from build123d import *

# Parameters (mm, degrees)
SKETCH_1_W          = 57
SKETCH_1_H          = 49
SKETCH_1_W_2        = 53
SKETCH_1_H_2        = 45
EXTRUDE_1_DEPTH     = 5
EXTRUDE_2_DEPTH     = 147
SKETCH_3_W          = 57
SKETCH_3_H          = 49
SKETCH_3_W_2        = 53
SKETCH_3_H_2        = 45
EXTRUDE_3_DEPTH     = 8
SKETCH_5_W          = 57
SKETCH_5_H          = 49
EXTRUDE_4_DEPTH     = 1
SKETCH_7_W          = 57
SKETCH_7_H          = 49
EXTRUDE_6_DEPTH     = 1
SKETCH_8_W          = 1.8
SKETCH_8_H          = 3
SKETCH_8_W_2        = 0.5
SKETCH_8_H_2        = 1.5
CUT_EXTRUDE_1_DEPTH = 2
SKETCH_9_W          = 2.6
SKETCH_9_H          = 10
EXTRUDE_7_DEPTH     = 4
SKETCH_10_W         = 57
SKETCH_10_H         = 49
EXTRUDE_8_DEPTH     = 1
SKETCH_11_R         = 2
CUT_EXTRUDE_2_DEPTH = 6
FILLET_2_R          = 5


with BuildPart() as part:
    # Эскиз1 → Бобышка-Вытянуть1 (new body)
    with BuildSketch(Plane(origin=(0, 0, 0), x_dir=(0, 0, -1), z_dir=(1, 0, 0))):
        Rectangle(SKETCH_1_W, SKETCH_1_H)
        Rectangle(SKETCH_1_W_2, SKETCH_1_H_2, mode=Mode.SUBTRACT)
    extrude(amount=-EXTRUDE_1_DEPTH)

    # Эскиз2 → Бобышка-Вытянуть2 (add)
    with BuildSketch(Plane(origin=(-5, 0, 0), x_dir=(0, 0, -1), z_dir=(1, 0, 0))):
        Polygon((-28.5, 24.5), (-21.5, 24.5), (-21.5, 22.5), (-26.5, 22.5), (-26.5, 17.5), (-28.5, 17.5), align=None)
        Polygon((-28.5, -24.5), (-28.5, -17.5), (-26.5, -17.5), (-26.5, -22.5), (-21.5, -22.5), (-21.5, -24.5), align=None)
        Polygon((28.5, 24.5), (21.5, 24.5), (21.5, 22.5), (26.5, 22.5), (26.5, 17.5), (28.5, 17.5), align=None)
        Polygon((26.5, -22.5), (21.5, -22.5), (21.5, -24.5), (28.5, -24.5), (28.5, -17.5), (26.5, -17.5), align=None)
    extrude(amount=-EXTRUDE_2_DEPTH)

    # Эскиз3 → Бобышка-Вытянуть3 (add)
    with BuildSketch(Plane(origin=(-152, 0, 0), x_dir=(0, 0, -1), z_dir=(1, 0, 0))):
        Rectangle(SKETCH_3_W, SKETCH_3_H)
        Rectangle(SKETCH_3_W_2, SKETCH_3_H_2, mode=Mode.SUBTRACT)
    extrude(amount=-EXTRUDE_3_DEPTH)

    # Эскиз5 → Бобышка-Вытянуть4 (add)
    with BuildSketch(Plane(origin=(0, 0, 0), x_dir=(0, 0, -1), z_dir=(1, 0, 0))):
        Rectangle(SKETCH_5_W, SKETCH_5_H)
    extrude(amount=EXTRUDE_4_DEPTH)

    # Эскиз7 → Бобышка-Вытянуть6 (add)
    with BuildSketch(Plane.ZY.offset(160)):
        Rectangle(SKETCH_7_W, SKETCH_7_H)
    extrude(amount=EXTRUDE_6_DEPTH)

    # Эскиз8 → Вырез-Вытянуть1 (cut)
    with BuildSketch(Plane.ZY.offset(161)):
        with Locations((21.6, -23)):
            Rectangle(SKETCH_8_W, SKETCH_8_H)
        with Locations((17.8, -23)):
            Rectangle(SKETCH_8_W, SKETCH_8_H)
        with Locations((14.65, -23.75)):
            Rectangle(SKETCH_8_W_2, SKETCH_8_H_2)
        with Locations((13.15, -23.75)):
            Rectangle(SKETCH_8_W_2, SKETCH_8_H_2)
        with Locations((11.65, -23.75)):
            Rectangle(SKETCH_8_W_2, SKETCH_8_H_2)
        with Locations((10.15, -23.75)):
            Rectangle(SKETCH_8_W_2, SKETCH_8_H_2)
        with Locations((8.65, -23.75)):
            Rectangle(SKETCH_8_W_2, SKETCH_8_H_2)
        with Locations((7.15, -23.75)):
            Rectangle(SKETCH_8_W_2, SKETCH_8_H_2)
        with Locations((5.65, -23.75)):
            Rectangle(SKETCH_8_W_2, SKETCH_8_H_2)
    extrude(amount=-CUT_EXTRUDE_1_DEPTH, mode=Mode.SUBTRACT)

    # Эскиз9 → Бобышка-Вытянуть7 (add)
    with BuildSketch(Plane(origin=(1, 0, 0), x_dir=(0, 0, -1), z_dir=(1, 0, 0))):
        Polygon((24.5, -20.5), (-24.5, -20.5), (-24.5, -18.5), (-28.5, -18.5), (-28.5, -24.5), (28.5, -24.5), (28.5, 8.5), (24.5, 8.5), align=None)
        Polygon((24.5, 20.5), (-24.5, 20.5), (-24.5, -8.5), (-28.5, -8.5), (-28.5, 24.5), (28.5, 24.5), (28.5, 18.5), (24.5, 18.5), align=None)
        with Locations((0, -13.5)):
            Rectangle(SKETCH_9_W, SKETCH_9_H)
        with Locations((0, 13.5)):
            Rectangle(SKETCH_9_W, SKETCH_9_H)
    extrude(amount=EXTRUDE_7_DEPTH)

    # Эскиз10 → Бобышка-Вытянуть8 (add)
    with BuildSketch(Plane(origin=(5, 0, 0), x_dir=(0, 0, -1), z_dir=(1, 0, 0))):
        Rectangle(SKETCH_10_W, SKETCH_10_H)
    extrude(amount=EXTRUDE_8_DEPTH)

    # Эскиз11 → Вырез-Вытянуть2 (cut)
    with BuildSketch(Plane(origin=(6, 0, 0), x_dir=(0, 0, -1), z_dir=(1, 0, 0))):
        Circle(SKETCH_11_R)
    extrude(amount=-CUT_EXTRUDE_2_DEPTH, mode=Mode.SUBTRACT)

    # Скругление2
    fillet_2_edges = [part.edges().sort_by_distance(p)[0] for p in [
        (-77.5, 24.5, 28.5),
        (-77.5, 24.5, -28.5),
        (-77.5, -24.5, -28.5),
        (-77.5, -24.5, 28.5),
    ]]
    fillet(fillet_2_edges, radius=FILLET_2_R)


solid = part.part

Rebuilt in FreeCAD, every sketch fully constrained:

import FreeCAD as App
import Part
import Sketcher
Q = App.Units.Quantity


def edges_at(feature, points):
    """Names of the edges that pass closest to the given points."""
    edges = feature.Shape.Edges
    near = lambda p: min(range(len(edges)), key=lambda i: edges[i].distToShape(Part.Vertex(*p))[0])
    return sorted({f"Edge{near(p) + 1}" for p in points})


def add_polygon(sketch, points):
    """Adds a closed chain of lines whose ends are joined by coincident constraints."""
    first, n = sketch.GeometryCount, len(points)
    for a, b in zip(points, points[1:] + points[:1]):
        sketch.addGeometry(Part.LineSegment(App.Vector(*a, 0), App.Vector(*b, 0)), False)
    for i in range(n):
        sketch.addConstraint(Sketcher.Constraint("Coincident", first + i, 2, first + (i + 1) % n, 1))

doc = App.newDocument("Part")
body = doc.addObject("PartDesign::Body", "Body")

sketch1 = body.newObject("Sketcher::SketchObject", "Sketch")
sketch1.AttachmentSupport = (doc.getObject("YZ_Plane"), [""])
sketch1.MapMode = "FlatFace"
add_polygon(sketch1, [(24, 28), (-24, 28), (-24, -28), (24, -28)])
add_polygon(sketch1, [(-22, -26), (-22, 26), (22, 26), (22, -26)])
sketch1.addConstraint(Sketcher.Constraint("Horizontal", 0))
sketch1.addConstraint(Sketcher.Constraint("Vertical", 1))
sketch1.addConstraint(Sketcher.Constraint("Horizontal", 2))
sketch1.addConstraint(Sketcher.Constraint("Vertical", 3))
sketch1.addConstraint(Sketcher.Constraint("Vertical", 4))
sketch1.addConstraint(Sketcher.Constraint("Horizontal", 5))
sketch1.addConstraint(Sketcher.Constraint("Vertical", 6))
sketch1.addConstraint(Sketcher.Constraint("Horizontal", 7))
sketch1.addConstraint(Sketcher.Constraint("Symmetric", 0, 2, 2, 2, -1, 1))
sketch1.addConstraint(Sketcher.Constraint("Symmetric", 4, 2, 6, 2, -1, 1))
sketch1.addConstraint(Sketcher.Constraint("DistanceX", 0, 2, 0, 1, Q("49 mm")))
sketch1.addConstraint(Sketcher.Constraint("DistanceX", 5, 1, 5, 2, Q("45 mm")))
sketch1.addConstraint(Sketcher.Constraint("DistanceY", 1, 2, 1, 1, Q("57 mm")))
sketch1.addConstraint(Sketcher.Constraint("DistanceY", 4, 1, 4, 2, Q("53 mm")))
pad1 = body.newObject("PartDesign::Pad", "Pad")
pad1.Profile = sketch1
pad1.Length = 5
pad1.Reversed = True

sketch2 = body.newObject("Sketcher::SketchObject", "Sketch001")
sketch2.AttachmentSupport = (doc.getObject("YZ_Plane"), [""])
sketch2.MapMode = "FlatFace"
sketch2.AttachmentOffset = App.Placement(App.Vector(0, 0, -5), App.Rotation())
add_polygon(sketch2, [(24.5, 21.5), (24.5, 28.5), (17.5, 28.5), (17.5, 26.5), (22.5, 26.5), (22.5, 21.5)])
add_polygon(sketch2, [(-17.5, 28.5), (-24.5, 28.5), (-24.5, 21.5), (-22.5, 21.5), (-22.5, 26.5), (-17.5, 26.5)])
add_polygon(sketch2, [(24.5, -28.5), (24.5, -21.5), (22.5, -21.5), (22.5, -26.5), (17.5, -26.5), (17.5, -28.5)])
add_polygon(sketch2, [(-22.5, -26.5), (-22.5, -21.5), (-24.5, -21.5), (-24.5, -28.5), (-17.5, -28.5), (-17.5, -26.5)])
sketch2.addConstraint(Sketcher.Constraint("Vertical", 0))
sketch2.addConstraint(Sketcher.Constraint("Horizontal", 1))
sketch2.addConstraint(Sketcher.Constraint("Vertical", 2))
sketch2.addConstraint(Sketcher.Constraint("Horizontal", 3))
sketch2.addConstraint(Sketcher.Constraint("Vertical", 4))
sketch2.addConstraint(Sketcher.Constraint("Horizontal", 5))
sketch2.addConstraint(Sketcher.Constraint("Horizontal", 6))
sketch2.addConstraint(Sketcher.Constraint("Vertical", 7))
sketch2.addConstraint(Sketcher.Constraint("Horizontal", 8))
sketch2.addConstraint(Sketcher.Constraint("Vertical", 9))
sketch2.addConstraint(Sketcher.Constraint("Horizontal", 10))
sketch2.addConstraint(Sketcher.Constraint("Vertical", 11))
sketch2.addConstraint(Sketcher.Constraint("Vertical", 12))
sketch2.addConstraint(Sketcher.Constraint("Horizontal", 13))
sketch2.addConstraint(Sketcher.Constraint("Vertical", 14))
sketch2.addConstraint(Sketcher.Constraint("Horizontal", 15))
sketch2.addConstraint(Sketcher.Constraint("Vertical", 16))
sketch2.addConstraint(Sketcher.Constraint("Horizontal", 17))
sketch2.addConstraint(Sketcher.Constraint("Vertical", 18))
sketch2.addConstraint(Sketcher.Constraint("Horizontal", 19))
sketch2.addConstraint(Sketcher.Constraint("Vertical", 20))
sketch2.addConstraint(Sketcher.Constraint("Horizontal", 21))
sketch2.addConstraint(Sketcher.Constraint("Vertical", 22))
sketch2.addConstraint(Sketcher.Constraint("Horizontal", 23))
sketch2.addConstraint(Sketcher.Constraint("Symmetric", 7, 2, 12, 2, -1, 1))
sketch2.addConstraint(Sketcher.Constraint("Symmetric", 9, 2, 14, 2, -1, 1))
sketch2.addConstraint(Sketcher.Constraint("Symmetric", 11, 2, 16, 2, -1, 1))
sketch2.addConstraint(Sketcher.Constraint("Symmetric", 4, 2, 18, 2, -1, 1))
sketch2.addConstraint(Sketcher.Constraint("Symmetric", 0, 2, 20, 2, -1, 1))
sketch2.addConstraint(Sketcher.Constraint("Symmetric", 2, 2, 22, 2, -1, 1))
sketch2.addConstraint(Sketcher.Constraint("Symmetric", 0, 2, 6, 2, -2))
sketch2.addConstraint(Sketcher.Constraint("Symmetric", 4, 2, 8, 2, -2))
sketch2.addConstraint(Sketcher.Constraint("Symmetric", 2, 2, 10, 2, -2))
sketch2.addConstraint(Sketcher.Constraint("Equal", 21, 0))
sketch2.addConstraint(Sketcher.Constraint("Equal", 19, 2))
sketch2.addConstraint(Sketcher.Constraint("DistanceX", 1, 2, 1, 1, Q("7 mm")))
sketch2.addConstraint(Sketcher.Constraint("DistanceX", 3, 1, 3, 2, Q("5 mm")))
sketch2.addConstraint(Sketcher.Constraint("DistanceX", 6, 2, 1, 2, Q("42 mm")))
sketch2.addConstraint(Sketcher.Constraint("DistanceY", 12, 2, 5, 2, Q("43 mm")))
pad2 = body.newObject("PartDesign::Pad", "Pad001")
pad2.Profile = sketch2
pad2.Length = 147
pad2.Reversed = True

sketch3 = body.newObject("Sketcher::SketchObject", "Sketch002")
sketch3.AttachmentSupport = (doc.getObject("YZ_Plane"), [""])
sketch3.MapMode = "FlatFace"
sketch3.AttachmentOffset = App.Placement(App.Vector(0, 0, -152), App.Rotation())
add_polygon(sketch3, [(24, 28), (-24, 28), (-24, -28), (24, -28)])
add_polygon(sketch3, [(-22, -26), (-22, 26), (22, 26), (22, -26)])
sketch3.addConstraint(Sketcher.Constraint("Horizontal", 0))
sketch3.addConstraint(Sketcher.Constraint("Vertical", 1))
sketch3.addConstraint(Sketcher.Constraint("Horizontal", 2))
sketch3.addConstraint(Sketcher.Constraint("Vertical", 3))
sketch3.addConstraint(Sketcher.Constraint("Vertical", 4))
sketch3.addConstraint(Sketcher.Constraint("Horizontal", 5))
sketch3.addConstraint(Sketcher.Constraint("Vertical", 6))
sketch3.addConstraint(Sketcher.Constraint("Horizontal", 7))
sketch3.addConstraint(Sketcher.Constraint("Symmetric", 0, 2, 2, 2, -1, 1))
sketch3.addConstraint(Sketcher.Constraint("Symmetric", 4, 2, 6, 2, -1, 1))
sketch3.addConstraint(Sketcher.Constraint("DistanceX", 0, 2, 0, 1, Q("49 mm")))
sketch3.addConstraint(Sketcher.Constraint("DistanceX", 5, 1, 5, 2, Q("45 mm")))
sketch3.addConstraint(Sketcher.Constraint("DistanceY", 1, 2, 1, 1, Q("57 mm")))
sketch3.addConstraint(Sketcher.Constraint("DistanceY", 4, 1, 4, 2, Q("53 mm")))
pad3 = body.newObject("PartDesign::Pad", "Pad002")
pad3.Profile = sketch3
pad3.Length = 8
pad3.Reversed = True

sketch4 = body.newObject("Sketcher::SketchObject", "Sketch003")
sketch4.AttachmentSupport = (doc.getObject("YZ_Plane"), [""])
sketch4.MapMode = "FlatFace"
add_polygon(sketch4, [(24, 28), (-24, 28), (-24, -28), (24, -28)])
sketch4.addConstraint(Sketcher.Constraint("Horizontal", 0))
sketch4.addConstraint(Sketcher.Constraint("Vertical", 1))
sketch4.addConstraint(Sketcher.Constraint("Horizontal", 2))
sketch4.addConstraint(Sketcher.Constraint("Vertical", 3))
sketch4.addConstraint(Sketcher.Constraint("Symmetric", 0, 2, 2, 2, -1, 1))
sketch4.addConstraint(Sketcher.Constraint("DistanceX", 0, 2, 0, 1, Q("49 mm")))
sketch4.addConstraint(Sketcher.Constraint("DistanceY", 1, 2, 1, 1, Q("57 mm")))
pad4 = body.newObject("PartDesign::Pad", "Pad003")
pad4.Profile = sketch4
pad4.Length = 1

sketch5 = body.newObject("Sketcher::SketchObject", "Sketch004")
sketch5.AttachmentSupport = (doc.getObject("YZ_Plane"), [""])
sketch5.MapMode = "FlatFace"
sketch5.AttachmentOffset = App.Placement(App.Vector(0, 0, -160), App.Rotation())
add_polygon(sketch5, [(24, -28), (-24, -28), (-24, 28), (24, 28)])
sketch5.addConstraint(Sketcher.Constraint("Horizontal", 0))
sketch5.addConstraint(Sketcher.Constraint("Vertical", 1))
sketch5.addConstraint(Sketcher.Constraint("Horizontal", 2))
sketch5.addConstraint(Sketcher.Constraint("Vertical", 3))
sketch5.addConstraint(Sketcher.Constraint("Symmetric", 0, 2, 2, 2, -1, 1))
sketch5.addConstraint(Sketcher.Constraint("DistanceX", 0, 2, 0, 1, Q("49 mm")))
sketch5.addConstraint(Sketcher.Constraint("DistanceY", 1, 1, 1, 2, Q("57 mm")))
pad5 = body.newObject("PartDesign::Pad", "Pad004")
pad5.Profile = sketch5
pad5.Length = 1
pad5.Reversed = True

sketch6 = body.newObject("Sketcher::SketchObject", "Sketch005")
sketch6.AttachmentSupport = (doc.getObject("YZ_Plane"), [""])
sketch6.MapMode = "FlatFace"
sketch6.AttachmentOffset = App.Placement(App.Vector(0, 0, -161), App.Rotation())
add_polygon(sketch6, [(-21.5, 20.7), (-24.5, 20.7), (-24.5, 22.5), (-21.5, 22.5)])
add_polygon(sketch6, [(-21.5, 16.9), (-24.5, 16.9), (-24.5, 18.7), (-21.5, 18.7)])
add_polygon(sketch6, [(-23, 14.4), (-24.5, 14.4), (-24.5, 14.9), (-23, 14.9)])
add_polygon(sketch6, [(-23, 12.9), (-24.5, 12.9), (-24.5, 13.4), (-23, 13.4)])
add_polygon(sketch6, [(-23, 11.4), (-24.5, 11.4), (-24.5, 11.9), (-23, 11.9)])
add_polygon(sketch6, [(-23, 9.9), (-24.5, 9.9), (-24.5, 10.4), (-23, 10.4)])
add_polygon(sketch6, [(-23, 8.4), (-24.5, 8.4), (-24.5, 8.9), (-23, 8.9)])
add_polygon(sketch6, [(-23, 6.9), (-24.5, 6.9), (-24.5, 7.4), (-23, 7.4)])
add_polygon(sketch6, [(-23, 5.4), (-24.5, 5.4), (-24.5, 5.9), (-23, 5.9)])
sketch6.addConstraint(Sketcher.Constraint("Horizontal", 0))
sketch6.addConstraint(Sketcher.Constraint("Vertical", 1))
sketch6.addConstraint(Sketcher.Constraint("Horizontal", 2))
sketch6.addConstraint(Sketcher.Constraint("Vertical", 3))
sketch6.addConstraint(Sketcher.Constraint("Horizontal", 4))
sketch6.addConstraint(Sketcher.Constraint("Vertical", 5))
sketch6.addConstraint(Sketcher.Constraint("Horizontal", 6))
sketch6.addConstraint(Sketcher.Constraint("Vertical", 7))
sketch6.addConstraint(Sketcher.Constraint("Horizontal", 8))
sketch6.addConstraint(Sketcher.Constraint("Vertical", 9))
sketch6.addConstraint(Sketcher.Constraint("Horizontal", 10))
sketch6.addConstraint(Sketcher.Constraint("Vertical", 11))
sketch6.addConstraint(Sketcher.Constraint("Horizontal", 12))
sketch6.addConstraint(Sketcher.Constraint("Vertical", 13))
sketch6.addConstraint(Sketcher.Constraint("Horizontal", 14))
sketch6.addConstraint(Sketcher.Constraint("Vertical", 15))
sketch6.addConstraint(Sketcher.Constraint("Horizontal", 16))
sketch6.addConstraint(Sketcher.Constraint("Vertical", 17))
sketch6.addConstraint(Sketcher.Constraint("Horizontal", 18))
sketch6.addConstraint(Sketcher.Constraint("Vertical", 19))
sketch6.addConstraint(Sketcher.Constraint("Horizontal", 20))
sketch6.addConstraint(Sketcher.Constraint("Vertical", 21))
sketch6.addConstraint(Sketcher.Constraint("Horizontal", 22))
sketch6.addConstraint(Sketcher.Constraint("Vertical", 23))
sketch6.addConstraint(Sketcher.Constraint("Horizontal", 24))
sketch6.addConstraint(Sketcher.Constraint("Vertical", 25))
sketch6.addConstraint(Sketcher.Constraint("Horizontal", 26))
sketch6.addConstraint(Sketcher.Constraint("Vertical", 27))
sketch6.addConstraint(Sketcher.Constraint("Horizontal", 28))
sketch6.addConstraint(Sketcher.Constraint("Vertical", 29))
sketch6.addConstraint(Sketcher.Constraint("Horizontal", 30))
sketch6.addConstraint(Sketcher.Constraint("Vertical", 31))
sketch6.addConstraint(Sketcher.Constraint("Horizontal", 32))
sketch6.addConstraint(Sketcher.Constraint("Vertical", 33))
sketch6.addConstraint(Sketcher.Constraint("Horizontal", 34))
sketch6.addConstraint(Sketcher.Constraint("Vertical", 35))
sketch6.addConstraint(Sketcher.Constraint("Vertical", 1, 2, 4, 2))
sketch6.addConstraint(Sketcher.Constraint("Vertical", 3, 2, 6, 2))
sketch6.addConstraint(Sketcher.Constraint("Vertical", 5, 2, 8, 2))
sketch6.addConstraint(Sketcher.Constraint("Vertical", 9, 2, 12, 2))
sketch6.addConstraint(Sketcher.Constraint("Vertical", 11, 2, 14, 2))
sketch6.addConstraint(Sketcher.Constraint("Vertical", 13, 2, 16, 2))
sketch6.addConstraint(Sketcher.Constraint("Vertical", 15, 2, 18, 2))
sketch6.addConstraint(Sketcher.Constraint("Vertical", 17, 2, 20, 2))
sketch6.addConstraint(Sketcher.Constraint("Vertical", 19, 2, 22, 2))
sketch6.addConstraint(Sketcher.Constraint("Vertical", 21, 2, 24, 2))
sketch6.addConstraint(Sketcher.Constraint("Vertical", 23, 2, 26, 2))
sketch6.addConstraint(Sketcher.Constraint("Vertical", 25, 2, 28, 2))
sketch6.addConstraint(Sketcher.Constraint("Vertical", 27, 2, 30, 2))
sketch6.addConstraint(Sketcher.Constraint("Vertical", 29, 2, 32, 2))
sketch6.addConstraint(Sketcher.Constraint("Vertical", 31, 2, 34, 2))
sketch6.addConstraint(Sketcher.Constraint("Equal", 3, 5))
sketch6.addConstraint(Sketcher.Constraint("Equal", 11, 13))
sketch6.addConstraint(Sketcher.Constraint("Equal", 15, 17))
sketch6.addConstraint(Sketcher.Constraint("Equal", 19, 21))
sketch6.addConstraint(Sketcher.Constraint("Equal", 23, 25))
sketch6.addConstraint(Sketcher.Constraint("Equal", 27, 29))
sketch6.addConstraint(Sketcher.Constraint("Equal", 31, 33))
sketch6.addConstraint(Sketcher.Constraint("DistanceX", 0, 2, 0, 1, Q("3 mm")))
sketch6.addConstraint(Sketcher.Constraint("DistanceX", 8, 2, 8, 1, Q("1.5 mm")))
sketch6.addConstraint(Sketcher.Constraint("DistanceY", 1, 1, 1, 2, Q("1.8 mm")))
sketch6.addConstraint(Sketcher.Constraint("DistanceY", 9, 1, 9, 2, Q("0.5 mm")))
sketch6.addConstraint(Sketcher.Constraint("DistanceX", 10, 2, -1, 1, Q("23 mm")))
sketch6.addConstraint(Sketcher.Constraint("DistanceY", 5, 2, 0, 2, Q("2 mm")))
sketch6.addConstraint(Sketcher.Constraint("DistanceY", 9, 2, 4, 2, Q("2 mm")))
sketch6.addConstraint(Sketcher.Constraint("DistanceY", 12, 2, 9, 2, Q("2 mm")))
sketch6.addConstraint(Sketcher.Constraint("DistanceY", 16, 2, 13, 2, Q("2 mm")))
sketch6.addConstraint(Sketcher.Constraint("DistanceY", 20, 2, 17, 2, Q("2 mm")))
sketch6.addConstraint(Sketcher.Constraint("DistanceY", 24, 2, 21, 2, Q("2 mm")))
sketch6.addConstraint(Sketcher.Constraint("DistanceY", 28, 2, 25, 2, Q("2 mm")))
sketch6.addConstraint(Sketcher.Constraint("DistanceY", 32, 2, 29, 2, Q("2 mm")))
sketch6.addConstraint(Sketcher.Constraint("DistanceY", -1, 1, 0, 2, Q("20.7 mm")))
pocket1 = body.newObject("PartDesign::Pocket", "Pocket")
pocket1.Profile = sketch6
pocket1.Length = 2
pocket1.Reversed = True

sketch7 = body.newObject("Sketcher::SketchObject", "Sketch006")
sketch7.AttachmentSupport = (doc.getObject("YZ_Plane"), [""])
sketch7.MapMode = "FlatFace"
sketch7.AttachmentOffset = App.Placement(App.Vector(0, 0, 1), App.Rotation())
add_polygon(sketch7, [(-20.5, -24.5), (-20.5, 24.5), (-18.5, 24.5), (-18.5, 28.5), (-24.5, 28.5), (-24.5, -28.5), (8.5, -28.5), (8.5, -24.5)])
add_polygon(sketch7, [(20.5, 24.5), (20.5, -24.5), (18.5, -24.5), (18.5, -28.5), (24.5, -28.5), (24.5, 28.5), (-8.5, 28.5), (-8.5, 24.5)])
add_polygon(sketch7, [(-8.5, 1.3), (-18.5, 1.3), (-18.5, -1.3), (-8.5, -1.3)])
add_polygon(sketch7, [(18.5, 1.3), (8.5, 1.3), (8.5, -1.3), (18.5, -1.3)])
sketch7.addConstraint(Sketcher.Constraint("Vertical", 0))
sketch7.addConstraint(Sketcher.Constraint("Horizontal", 1))
sketch7.addConstraint(Sketcher.Constraint("Vertical", 2))
sketch7.addConstraint(Sketcher.Constraint("Horizontal", 3))
sketch7.addConstraint(Sketcher.Constraint("Vertical", 4))
sketch7.addConstraint(Sketcher.Constraint("Horizontal", 5))
sketch7.addConstraint(Sketcher.Constraint("Vertical", 6))
sketch7.addConstraint(Sketcher.Constraint("Horizontal", 7))
sketch7.addConstraint(Sketcher.Constraint("Vertical", 8))
sketch7.addConstraint(Sketcher.Constraint("Horizontal", 9))
sketch7.addConstraint(Sketcher.Constraint("Vertical", 10))
sketch7.addConstraint(Sketcher.Constraint("Horizontal", 11))
sketch7.addConstraint(Sketcher.Constraint("Vertical", 12))
sketch7.addConstraint(Sketcher.Constraint("Horizontal", 13))
sketch7.addConstraint(Sketcher.Constraint("Vertical", 14))
sketch7.addConstraint(Sketcher.Constraint("Horizontal", 15))
sketch7.addConstraint(Sketcher.Constraint("Horizontal", 16))
sketch7.addConstraint(Sketcher.Constraint("Vertical", 17))
sketch7.addConstraint(Sketcher.Constraint("Horizontal", 18))
sketch7.addConstraint(Sketcher.Constraint("Vertical", 19))
sketch7.addConstraint(Sketcher.Constraint("Horizontal", 20))
sketch7.addConstraint(Sketcher.Constraint("Vertical", 21))
sketch7.addConstraint(Sketcher.Constraint("Horizontal", 22))
sketch7.addConstraint(Sketcher.Constraint("Vertical", 23))
sketch7.addConstraint(Sketcher.Constraint("Symmetric", 0, 2, 8, 2, -1, 1))
sketch7.addConstraint(Sketcher.Constraint("Symmetric", 2, 2, 10, 2, -1, 1))
sketch7.addConstraint(Sketcher.Constraint("Symmetric", 4, 2, 12, 2, -1, 1))
sketch7.addConstraint(Sketcher.Constraint("Symmetric", 6, 2, 14, 2, -1, 1))
sketch7.addConstraint(Sketcher.Constraint("Symmetric", 18, 2, 20, 2, -1, 1))
sketch7.addConstraint(Sketcher.Constraint("Symmetric", 16, 2, 22, 2, -1, 1))
sketch7.addConstraint(Sketcher.Constraint("Horizontal", 7, 2, 8, 2))
sketch7.addConstraint(Sketcher.Constraint("Horizontal", 5, 2, 10, 2))
sketch7.addConstraint(Sketcher.Constraint("Horizontal", 19, 2, 20, 2))
sketch7.addConstraint(Sketcher.Constraint("Vertical", 2, 2, 16, 2))
sketch7.addConstraint(Sketcher.Constraint("Vertical", 14, 2, 18, 2))
sketch7.addConstraint(Sketcher.Constraint("DistanceX", 1, 1, 1, 2, Q("2 mm")))
sketch7.addConstraint(Sketcher.Constraint("DistanceX", 3, 2, 3, 1, Q("6 mm")))
sketch7.addConstraint(Sketcher.Constraint("DistanceX", 5, 1, 5, 2, Q("33 mm")))
sketch7.addConstraint(Sketcher.Constraint("DistanceX", 16, 2, 16, 1, Q("10 mm")))
sketch7.addConstraint(Sketcher.Constraint("DistanceY", 0, 1, 0, 2, Q("49 mm")))
sketch7.addConstraint(Sketcher.Constraint("DistanceY", 2, 1, 2, 2, Q("4 mm")))
sketch7.addConstraint(Sketcher.Constraint("DistanceY", 17, 2, 17, 1, Q("2.6 mm")))
pad6 = body.newObject("PartDesign::Pad", "Pad005")
pad6.Profile = sketch7
pad6.Length = 4

sketch8 = body.newObject("Sketcher::SketchObject", "Sketch007")
sketch8.AttachmentSupport = (doc.getObject("YZ_Plane"), [""])
sketch8.MapMode = "FlatFace"
sketch8.AttachmentOffset = App.Placement(App.Vector(0, 0, 5), App.Rotation())
add_polygon(sketch8, [(24, 28), (-24, 28), (-24, -28), (24, -28)])
sketch8.addConstraint(Sketcher.Constraint("Horizontal", 0))
sketch8.addConstraint(Sketcher.Constraint("Vertical", 1))
sketch8.addConstraint(Sketcher.Constraint("Horizontal", 2))
sketch8.addConstraint(Sketcher.Constraint("Vertical", 3))
sketch8.addConstraint(Sketcher.Constraint("Symmetric", 0, 2, 2, 2, -1, 1))
sketch8.addConstraint(Sketcher.Constraint("DistanceX", 0, 2, 0, 1, Q("49 mm")))
sketch8.addConstraint(Sketcher.Constraint("DistanceY", 1, 2, 1, 1, Q("57 mm")))
pad7 = body.newObject("PartDesign::Pad", "Pad006")
pad7.Profile = sketch8
pad7.Length = 1

sketch9 = body.newObject("Sketcher::SketchObject", "Sketch008")
sketch9.AttachmentSupport = (doc.getObject("YZ_Plane"), [""])
sketch9.MapMode = "FlatFace"
sketch9.AttachmentOffset = App.Placement(App.Vector(0, 0, 6), App.Rotation())
sketch9.addGeometry(Part.Circle(App.Vector(0, 0, 0), App.Vector(0, 0, 1), 2), False)
sketch9.addConstraint(Sketcher.Constraint("Coincident", 0, 3, -1, 1))
sketch9.addConstraint(Sketcher.Constraint("Diameter", 0, Q("4 mm")))
pocket2 = body.newObject("PartDesign::Pocket", "Pocket001")
pocket2.Profile = sketch9
pocket2.Length = 6
doc.recompute()

fillet = body.newObject("PartDesign::Fillet", "Fillet")
fillet.Base = (pocket2, edges_at(pocket2, [
    (-77.5, 24.5, 28.5),
    (-77.5, 24.5, -28.5),
    (-77.5, -24.5, -28.5),
    (-77.5, -24.5, 28.5),
]))
fillet.Radius = 5

doc.recompute()
